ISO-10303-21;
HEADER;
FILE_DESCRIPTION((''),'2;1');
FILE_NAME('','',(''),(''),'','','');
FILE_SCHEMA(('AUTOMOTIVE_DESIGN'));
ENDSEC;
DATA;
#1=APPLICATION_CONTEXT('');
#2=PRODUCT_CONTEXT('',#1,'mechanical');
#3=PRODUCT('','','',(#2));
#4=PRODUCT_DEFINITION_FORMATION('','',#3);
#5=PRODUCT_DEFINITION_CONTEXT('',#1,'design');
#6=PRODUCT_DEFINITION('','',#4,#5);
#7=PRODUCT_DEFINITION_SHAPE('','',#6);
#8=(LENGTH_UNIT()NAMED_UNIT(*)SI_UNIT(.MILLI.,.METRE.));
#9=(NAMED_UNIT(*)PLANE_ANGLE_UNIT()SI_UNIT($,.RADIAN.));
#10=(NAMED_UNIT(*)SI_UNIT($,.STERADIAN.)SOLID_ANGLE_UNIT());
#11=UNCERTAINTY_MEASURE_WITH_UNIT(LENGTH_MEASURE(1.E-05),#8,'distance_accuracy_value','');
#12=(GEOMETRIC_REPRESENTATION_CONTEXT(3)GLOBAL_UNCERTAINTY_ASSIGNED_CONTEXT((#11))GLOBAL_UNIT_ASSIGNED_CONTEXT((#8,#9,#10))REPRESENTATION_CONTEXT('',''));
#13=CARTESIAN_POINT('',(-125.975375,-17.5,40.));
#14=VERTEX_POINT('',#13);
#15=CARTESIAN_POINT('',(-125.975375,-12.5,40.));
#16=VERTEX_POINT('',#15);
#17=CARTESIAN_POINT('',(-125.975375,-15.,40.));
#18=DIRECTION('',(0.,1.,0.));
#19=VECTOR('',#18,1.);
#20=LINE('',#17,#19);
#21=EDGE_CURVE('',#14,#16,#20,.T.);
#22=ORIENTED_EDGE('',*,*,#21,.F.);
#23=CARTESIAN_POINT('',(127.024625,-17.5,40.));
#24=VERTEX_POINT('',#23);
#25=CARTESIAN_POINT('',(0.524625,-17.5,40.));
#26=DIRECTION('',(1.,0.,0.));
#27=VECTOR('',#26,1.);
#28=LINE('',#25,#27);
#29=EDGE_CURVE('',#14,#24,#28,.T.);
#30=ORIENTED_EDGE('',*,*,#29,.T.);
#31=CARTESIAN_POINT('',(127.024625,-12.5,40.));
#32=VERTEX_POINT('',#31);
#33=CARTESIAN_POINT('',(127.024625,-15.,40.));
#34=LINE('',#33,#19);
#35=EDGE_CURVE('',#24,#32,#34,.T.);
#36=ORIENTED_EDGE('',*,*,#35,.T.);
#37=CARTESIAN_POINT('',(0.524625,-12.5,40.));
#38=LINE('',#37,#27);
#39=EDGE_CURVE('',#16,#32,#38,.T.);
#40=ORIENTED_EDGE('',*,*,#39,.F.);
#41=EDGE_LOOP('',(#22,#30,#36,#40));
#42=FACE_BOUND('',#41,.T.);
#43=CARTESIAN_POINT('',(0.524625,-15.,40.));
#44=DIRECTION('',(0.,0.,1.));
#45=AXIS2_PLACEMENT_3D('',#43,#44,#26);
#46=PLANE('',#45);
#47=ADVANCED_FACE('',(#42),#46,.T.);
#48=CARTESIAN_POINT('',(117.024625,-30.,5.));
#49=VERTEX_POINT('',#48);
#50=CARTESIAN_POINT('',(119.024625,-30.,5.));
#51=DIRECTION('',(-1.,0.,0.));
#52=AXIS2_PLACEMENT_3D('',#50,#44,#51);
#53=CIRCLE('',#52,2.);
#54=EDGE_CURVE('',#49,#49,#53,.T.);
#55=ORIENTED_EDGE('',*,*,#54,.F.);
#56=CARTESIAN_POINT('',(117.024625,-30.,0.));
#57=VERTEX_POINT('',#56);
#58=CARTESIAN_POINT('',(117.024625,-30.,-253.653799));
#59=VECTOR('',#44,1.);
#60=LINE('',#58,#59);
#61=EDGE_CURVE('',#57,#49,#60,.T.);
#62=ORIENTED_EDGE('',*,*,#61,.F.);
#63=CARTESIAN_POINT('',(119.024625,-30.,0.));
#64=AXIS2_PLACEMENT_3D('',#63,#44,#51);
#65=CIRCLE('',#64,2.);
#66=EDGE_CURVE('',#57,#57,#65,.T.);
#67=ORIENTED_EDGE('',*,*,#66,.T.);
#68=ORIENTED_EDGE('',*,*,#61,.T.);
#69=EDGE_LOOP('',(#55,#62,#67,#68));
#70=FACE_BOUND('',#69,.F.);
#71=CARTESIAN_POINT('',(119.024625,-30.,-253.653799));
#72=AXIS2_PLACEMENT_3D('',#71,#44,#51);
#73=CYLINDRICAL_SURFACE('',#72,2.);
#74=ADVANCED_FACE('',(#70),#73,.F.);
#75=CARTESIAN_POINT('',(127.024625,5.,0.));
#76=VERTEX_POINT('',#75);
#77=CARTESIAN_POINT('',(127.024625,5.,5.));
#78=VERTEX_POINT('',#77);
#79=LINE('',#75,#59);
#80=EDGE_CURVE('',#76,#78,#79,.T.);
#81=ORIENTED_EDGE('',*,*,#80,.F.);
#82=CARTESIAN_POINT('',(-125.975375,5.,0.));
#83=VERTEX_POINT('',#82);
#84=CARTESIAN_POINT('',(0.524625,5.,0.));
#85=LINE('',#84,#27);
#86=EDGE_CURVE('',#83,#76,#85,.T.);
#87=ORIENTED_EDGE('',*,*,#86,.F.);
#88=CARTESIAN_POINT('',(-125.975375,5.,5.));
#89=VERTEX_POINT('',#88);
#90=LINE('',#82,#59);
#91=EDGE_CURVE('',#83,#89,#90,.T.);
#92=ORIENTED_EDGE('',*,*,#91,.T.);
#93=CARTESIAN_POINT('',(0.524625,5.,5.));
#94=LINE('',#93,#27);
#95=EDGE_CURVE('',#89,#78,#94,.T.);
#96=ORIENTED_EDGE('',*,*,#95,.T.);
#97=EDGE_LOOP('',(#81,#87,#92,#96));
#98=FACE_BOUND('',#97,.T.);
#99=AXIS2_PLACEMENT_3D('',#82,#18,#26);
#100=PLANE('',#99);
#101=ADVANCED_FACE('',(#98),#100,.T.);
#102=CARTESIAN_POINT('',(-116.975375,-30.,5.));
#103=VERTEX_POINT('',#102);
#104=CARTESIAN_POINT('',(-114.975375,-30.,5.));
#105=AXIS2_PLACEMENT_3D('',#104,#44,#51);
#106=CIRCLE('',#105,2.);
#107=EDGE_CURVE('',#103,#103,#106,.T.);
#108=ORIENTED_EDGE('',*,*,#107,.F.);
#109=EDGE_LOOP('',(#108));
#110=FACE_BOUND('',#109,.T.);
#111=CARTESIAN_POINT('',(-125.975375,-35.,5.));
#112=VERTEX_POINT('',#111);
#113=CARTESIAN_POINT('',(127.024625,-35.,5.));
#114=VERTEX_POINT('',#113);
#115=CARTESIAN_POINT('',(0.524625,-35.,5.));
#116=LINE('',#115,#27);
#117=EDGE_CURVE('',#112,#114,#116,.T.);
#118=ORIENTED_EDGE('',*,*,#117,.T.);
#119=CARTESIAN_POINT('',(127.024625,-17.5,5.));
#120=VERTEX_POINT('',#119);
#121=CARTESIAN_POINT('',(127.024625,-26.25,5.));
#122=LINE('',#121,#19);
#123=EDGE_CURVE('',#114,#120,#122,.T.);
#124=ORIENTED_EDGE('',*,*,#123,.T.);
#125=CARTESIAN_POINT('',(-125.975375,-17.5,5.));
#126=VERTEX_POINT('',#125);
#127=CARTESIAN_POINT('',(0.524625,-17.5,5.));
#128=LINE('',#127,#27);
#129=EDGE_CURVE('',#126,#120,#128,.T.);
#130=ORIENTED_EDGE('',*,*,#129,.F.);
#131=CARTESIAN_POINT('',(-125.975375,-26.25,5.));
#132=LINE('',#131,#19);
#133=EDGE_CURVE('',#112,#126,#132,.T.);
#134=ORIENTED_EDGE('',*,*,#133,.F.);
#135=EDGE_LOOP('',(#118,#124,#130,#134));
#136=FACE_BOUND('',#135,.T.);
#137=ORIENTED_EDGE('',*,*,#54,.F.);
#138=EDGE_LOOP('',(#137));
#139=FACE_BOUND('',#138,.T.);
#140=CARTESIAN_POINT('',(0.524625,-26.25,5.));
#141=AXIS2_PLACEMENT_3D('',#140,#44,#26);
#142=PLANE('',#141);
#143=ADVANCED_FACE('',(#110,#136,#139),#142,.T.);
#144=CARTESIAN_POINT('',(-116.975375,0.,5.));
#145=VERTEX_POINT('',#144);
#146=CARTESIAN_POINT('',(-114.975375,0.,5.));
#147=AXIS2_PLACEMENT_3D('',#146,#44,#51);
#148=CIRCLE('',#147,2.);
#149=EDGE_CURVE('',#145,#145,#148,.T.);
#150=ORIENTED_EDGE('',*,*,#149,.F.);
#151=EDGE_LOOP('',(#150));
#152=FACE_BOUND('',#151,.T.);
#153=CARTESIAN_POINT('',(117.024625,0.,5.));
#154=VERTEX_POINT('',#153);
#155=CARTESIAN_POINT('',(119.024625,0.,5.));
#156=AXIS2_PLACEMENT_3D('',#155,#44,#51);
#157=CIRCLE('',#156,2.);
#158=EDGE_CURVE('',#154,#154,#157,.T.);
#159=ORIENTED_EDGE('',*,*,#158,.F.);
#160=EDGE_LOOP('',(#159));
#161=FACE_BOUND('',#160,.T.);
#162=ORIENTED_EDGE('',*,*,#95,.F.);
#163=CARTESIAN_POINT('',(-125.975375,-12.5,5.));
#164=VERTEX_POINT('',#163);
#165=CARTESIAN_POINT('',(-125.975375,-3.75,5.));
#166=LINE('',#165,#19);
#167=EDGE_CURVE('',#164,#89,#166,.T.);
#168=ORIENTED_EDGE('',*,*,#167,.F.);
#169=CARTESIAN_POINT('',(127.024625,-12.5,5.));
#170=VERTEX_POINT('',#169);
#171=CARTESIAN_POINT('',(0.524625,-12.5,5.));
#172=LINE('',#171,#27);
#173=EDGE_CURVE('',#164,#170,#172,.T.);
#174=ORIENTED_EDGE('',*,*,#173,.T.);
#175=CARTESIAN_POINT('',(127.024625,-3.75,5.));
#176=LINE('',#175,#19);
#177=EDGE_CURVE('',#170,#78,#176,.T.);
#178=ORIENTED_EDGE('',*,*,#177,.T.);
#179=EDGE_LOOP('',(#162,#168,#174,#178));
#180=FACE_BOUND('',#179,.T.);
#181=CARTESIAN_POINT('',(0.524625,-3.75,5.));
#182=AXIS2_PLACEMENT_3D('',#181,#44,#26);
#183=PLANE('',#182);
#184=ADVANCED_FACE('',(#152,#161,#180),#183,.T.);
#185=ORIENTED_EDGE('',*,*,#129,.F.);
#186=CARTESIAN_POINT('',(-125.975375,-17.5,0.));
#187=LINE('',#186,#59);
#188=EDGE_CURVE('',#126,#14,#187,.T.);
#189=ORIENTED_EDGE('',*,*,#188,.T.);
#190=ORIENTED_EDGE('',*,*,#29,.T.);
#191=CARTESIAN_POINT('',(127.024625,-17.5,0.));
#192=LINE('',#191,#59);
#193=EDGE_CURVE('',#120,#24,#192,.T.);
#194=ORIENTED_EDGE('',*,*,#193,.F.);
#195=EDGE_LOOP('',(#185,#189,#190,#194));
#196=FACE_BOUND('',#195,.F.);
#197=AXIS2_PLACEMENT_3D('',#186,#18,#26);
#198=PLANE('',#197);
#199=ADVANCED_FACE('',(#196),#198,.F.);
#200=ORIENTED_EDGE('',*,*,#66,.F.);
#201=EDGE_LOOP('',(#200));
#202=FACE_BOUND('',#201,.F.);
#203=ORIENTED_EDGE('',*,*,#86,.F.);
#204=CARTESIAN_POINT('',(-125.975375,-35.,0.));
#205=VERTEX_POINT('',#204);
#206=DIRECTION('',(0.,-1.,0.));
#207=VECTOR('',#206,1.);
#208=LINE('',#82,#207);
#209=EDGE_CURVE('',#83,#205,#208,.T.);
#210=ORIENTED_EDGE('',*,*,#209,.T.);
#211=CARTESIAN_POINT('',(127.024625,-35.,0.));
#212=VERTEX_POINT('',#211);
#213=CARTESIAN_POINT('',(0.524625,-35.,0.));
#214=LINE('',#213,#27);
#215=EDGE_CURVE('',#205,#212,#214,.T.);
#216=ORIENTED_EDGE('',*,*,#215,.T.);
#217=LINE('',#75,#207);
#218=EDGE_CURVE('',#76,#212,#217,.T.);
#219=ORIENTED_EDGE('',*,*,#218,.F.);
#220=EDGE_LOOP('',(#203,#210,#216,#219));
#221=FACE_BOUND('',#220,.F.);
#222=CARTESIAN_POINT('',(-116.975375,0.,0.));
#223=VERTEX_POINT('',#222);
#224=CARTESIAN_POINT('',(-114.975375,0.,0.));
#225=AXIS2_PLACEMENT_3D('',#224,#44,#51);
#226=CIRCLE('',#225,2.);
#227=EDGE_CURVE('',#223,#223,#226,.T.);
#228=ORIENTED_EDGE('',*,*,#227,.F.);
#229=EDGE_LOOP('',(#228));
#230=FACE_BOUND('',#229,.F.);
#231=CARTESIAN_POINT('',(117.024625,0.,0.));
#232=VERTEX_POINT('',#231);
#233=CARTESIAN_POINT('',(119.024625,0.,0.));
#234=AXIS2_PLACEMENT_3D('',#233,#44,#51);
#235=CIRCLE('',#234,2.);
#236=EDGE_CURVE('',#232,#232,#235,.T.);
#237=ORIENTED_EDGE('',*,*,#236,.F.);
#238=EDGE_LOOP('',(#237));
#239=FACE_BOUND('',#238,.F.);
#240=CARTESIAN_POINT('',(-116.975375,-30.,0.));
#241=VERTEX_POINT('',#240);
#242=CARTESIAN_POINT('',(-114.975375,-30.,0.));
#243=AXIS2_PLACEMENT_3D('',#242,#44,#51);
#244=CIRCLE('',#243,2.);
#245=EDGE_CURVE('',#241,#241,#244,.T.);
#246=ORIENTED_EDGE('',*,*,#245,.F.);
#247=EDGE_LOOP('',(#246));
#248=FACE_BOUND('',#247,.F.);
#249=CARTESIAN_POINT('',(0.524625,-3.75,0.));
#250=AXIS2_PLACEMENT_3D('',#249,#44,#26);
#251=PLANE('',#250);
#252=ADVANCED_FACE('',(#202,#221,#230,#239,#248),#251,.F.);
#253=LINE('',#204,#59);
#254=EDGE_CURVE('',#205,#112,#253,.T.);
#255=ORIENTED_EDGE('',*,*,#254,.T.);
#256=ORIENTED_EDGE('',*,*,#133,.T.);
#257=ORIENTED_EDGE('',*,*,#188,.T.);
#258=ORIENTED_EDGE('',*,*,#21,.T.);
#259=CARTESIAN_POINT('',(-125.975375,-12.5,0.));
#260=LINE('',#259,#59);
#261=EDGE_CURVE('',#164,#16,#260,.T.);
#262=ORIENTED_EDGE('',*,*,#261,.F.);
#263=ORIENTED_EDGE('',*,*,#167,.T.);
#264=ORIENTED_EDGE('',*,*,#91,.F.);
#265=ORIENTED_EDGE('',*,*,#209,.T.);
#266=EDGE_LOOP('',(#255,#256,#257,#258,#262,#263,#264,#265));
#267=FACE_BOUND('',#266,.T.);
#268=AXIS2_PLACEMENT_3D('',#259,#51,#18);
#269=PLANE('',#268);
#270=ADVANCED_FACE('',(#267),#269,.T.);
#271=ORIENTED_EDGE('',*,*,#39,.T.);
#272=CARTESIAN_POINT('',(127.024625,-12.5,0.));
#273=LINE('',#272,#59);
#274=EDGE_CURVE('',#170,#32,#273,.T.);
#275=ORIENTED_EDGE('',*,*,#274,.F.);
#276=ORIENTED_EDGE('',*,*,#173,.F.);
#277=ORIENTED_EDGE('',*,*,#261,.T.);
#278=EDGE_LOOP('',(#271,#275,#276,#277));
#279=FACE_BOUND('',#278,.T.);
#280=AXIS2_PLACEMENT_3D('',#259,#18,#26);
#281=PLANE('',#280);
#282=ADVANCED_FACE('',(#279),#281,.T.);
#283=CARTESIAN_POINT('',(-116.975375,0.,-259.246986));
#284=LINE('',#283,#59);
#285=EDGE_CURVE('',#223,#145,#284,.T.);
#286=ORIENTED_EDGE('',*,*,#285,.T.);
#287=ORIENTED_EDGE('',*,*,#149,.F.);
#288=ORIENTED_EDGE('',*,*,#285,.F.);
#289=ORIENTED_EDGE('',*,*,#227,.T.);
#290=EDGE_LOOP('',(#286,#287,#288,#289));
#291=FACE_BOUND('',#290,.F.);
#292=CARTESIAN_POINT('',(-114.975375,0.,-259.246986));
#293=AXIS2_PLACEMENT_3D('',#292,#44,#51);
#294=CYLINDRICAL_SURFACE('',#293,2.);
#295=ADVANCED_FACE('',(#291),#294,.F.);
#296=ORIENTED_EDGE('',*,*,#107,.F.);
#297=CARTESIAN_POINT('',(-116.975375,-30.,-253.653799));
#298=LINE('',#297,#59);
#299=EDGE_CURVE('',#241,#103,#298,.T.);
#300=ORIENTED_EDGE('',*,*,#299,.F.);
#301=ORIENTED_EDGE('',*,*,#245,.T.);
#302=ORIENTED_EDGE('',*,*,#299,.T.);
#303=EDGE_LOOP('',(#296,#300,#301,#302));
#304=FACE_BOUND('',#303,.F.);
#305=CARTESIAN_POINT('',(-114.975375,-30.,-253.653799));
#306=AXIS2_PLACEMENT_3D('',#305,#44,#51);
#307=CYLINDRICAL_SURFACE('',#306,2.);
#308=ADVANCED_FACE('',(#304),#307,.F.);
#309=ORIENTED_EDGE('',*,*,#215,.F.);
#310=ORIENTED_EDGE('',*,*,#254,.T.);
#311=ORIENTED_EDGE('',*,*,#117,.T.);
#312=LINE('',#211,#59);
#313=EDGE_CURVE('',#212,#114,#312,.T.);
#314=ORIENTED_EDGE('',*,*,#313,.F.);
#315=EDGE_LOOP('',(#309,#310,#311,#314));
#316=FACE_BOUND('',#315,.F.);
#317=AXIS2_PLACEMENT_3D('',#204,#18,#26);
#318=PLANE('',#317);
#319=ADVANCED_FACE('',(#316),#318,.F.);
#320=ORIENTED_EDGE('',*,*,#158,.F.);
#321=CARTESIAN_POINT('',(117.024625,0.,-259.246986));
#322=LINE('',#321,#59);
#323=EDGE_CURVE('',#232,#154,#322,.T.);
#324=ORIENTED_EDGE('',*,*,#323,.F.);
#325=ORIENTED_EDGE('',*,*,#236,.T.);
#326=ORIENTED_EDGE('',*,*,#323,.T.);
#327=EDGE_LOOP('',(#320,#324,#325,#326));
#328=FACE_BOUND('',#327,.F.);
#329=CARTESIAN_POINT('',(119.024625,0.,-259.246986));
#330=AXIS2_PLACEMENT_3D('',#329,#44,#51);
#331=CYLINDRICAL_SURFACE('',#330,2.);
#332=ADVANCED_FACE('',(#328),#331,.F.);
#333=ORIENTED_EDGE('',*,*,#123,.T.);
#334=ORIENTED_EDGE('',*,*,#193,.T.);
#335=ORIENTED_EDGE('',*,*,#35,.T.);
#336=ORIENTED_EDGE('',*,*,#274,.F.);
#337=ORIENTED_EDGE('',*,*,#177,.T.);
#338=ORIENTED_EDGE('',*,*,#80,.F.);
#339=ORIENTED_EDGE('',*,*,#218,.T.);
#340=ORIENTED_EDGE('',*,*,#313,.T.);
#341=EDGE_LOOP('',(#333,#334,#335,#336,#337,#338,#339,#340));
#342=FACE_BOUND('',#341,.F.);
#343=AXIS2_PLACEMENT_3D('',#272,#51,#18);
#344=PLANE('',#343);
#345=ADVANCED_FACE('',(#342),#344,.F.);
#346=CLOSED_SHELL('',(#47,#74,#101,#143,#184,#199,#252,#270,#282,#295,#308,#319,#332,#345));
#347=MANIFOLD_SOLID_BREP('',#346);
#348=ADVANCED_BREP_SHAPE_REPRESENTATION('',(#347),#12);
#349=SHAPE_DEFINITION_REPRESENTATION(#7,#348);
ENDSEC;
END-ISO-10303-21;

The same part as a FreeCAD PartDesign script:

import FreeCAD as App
import Part
import Sketcher

doc = App.newDocument("Part")
body = doc.addObject("PartDesign::Body", "Body")

# Sketch on XY plane
sketch1 = doc.addObject("Sketcher::SketchObject", "Sketch")
body.addObject(sketch1)
sketch1.AttachmentSupport = (doc.XY_Plane, [""])
sketch1.MapMode = "FlatFace"
sketch1.addGeometry(Part.LineSegment(App.Vector(-126, -18, 0), App.Vector(-126, -35, 0)), False)
sketch1.addGeometry(Part.LineSegment(App.Vector(-126, -35, 0), App.Vector(127, -35, 0)), False)
sketch1.addGeometry(Part.LineSegment(App.Vector(127, -35, 0), App.Vector(127, -18, 0)), False)
sketch1.addGeometry(Part.LineSegment(App.Vector(127, -18, 0), App.Vector(-126, -18, 0)), False)
sketch1.addConstraint(Sketcher.Constraint("Coincident", 0, 2, 1, 1))
sketch1.addConstraint(Sketcher.Constraint("Coincident", 1, 2, 2, 1))
sketch1.addConstraint(Sketcher.Constraint("Coincident", 2, 2, 3, 1))
sketch1.addConstraint(Sketcher.Constraint("Coincident", 3, 2, 0, 1))
sketch1.addConstraint(Sketcher.Constraint("Vertical", 0))
sketch1.addConstraint(Sketcher.Constraint("Horizontal", 1))
sketch1.addConstraint(Sketcher.Constraint("Vertical", 2))
sketch1.addConstraint(Sketcher.Constraint("Horizontal", 3))
sketch1.addConstraint(Sketcher.Constraint("DistanceX", 1, 1, 1, 2, 253.0))
sketch1.addConstraint(Sketcher.Constraint("DistanceY", 0, 2, 0, 1, 17.5))
sketch1.addConstraint(Sketcher.Constraint("DistanceY", 0, 2, -1, 1, 35.0))
sketch1.addConstraint(Sketcher.Constraint("DistanceX", 0, 2, -1, 1, 125.975375))
pad1 = doc.addObject("PartDesign::Pad", "Pad")
body.addObject(pad1)
pad1.Profile = sketch1
pad1.Length = 5

# Sketch on XY plane
sketch2 = doc.addObject("Sketcher::SketchObject", "Sketch001")
body.addObject(sketch2)
sketch2.AttachmentSupport = (doc.XY_Plane, [""])
sketch2.MapMode = "FlatFace"
sketch2.addGeometry(Part.Circle(App.Vector(-115, 0, 0), App.Vector(0, 0, 1), 2), False)
sketch2.addGeometry(Part.Circle(App.Vector(-115, -30, 0), App.Vector(0, 0, 1), 2), False)
sketch2.addGeometry(Part.Circle(App.Vector(119, -30, 0), App.Vector(0, 0, 1), 2), False)
sketch2.addGeometry(Part.Circle(App.Vector(119, 0, 0), App.Vector(0, 0, 1), 2), False)
sketch2.addConstraint(Sketcher.Constraint("Equal", 0, 1))
sketch2.addConstraint(Sketcher.Constraint("Equal", 1, 2))
sketch2.addConstraint(Sketcher.Constraint("Equal", 2, 3))
sketch2.addConstraint(Sketcher.Constraint("PointOnObject", 0, 3, -1))
sketch2.addConstraint(Sketcher.Constraint("PointOnObject", 3, 3, -1))
sketch2.addConstraint(Sketcher.Constraint("Horizontal", 1, 3, 2, 3))
sketch2.addConstraint(Sketcher.Constraint("Vertical", 0, 3, 1, 3))
sketch2.addConstraint(Sketcher.Constraint("Vertical", 2, 3, 3, 3))
sketch2.addConstraint(Sketcher.Constraint("Diameter", 0, 4.0))
sketch2.addConstraint(Sketcher.Constraint("DistanceY", 1, 3, -1, 1, 30.0))
sketch2.addConstraint(Sketcher.Constraint("DistanceX", 1, 3, 2, 3, 234.0))
sketch2.addConstraint(Sketcher.Constraint("DistanceX", 0, 3, -1, 1, 114.975375))
doc.recompute()
hole = doc.addObject("PartDesign::Hole", "Hole")
body.addObject(hole)
hole.Profile = sketch2
hole.ThreadType = "None"
hole.Diameter = 4
hole.DepthType = "ThroughAll"
hole.Reversed = True

# Sketch on XY plane
sketch3 = doc.addObject("Sketcher::SketchObject", "Sketch002")
body.addObject(sketch3)
sketch3.AttachmentSupport = (doc.XY_Plane, [""])
sketch3.MapMode = "FlatFace"
sketch3.addGeometry(Part.LineSegment(App.Vector(-126, -12, 0), App.Vector(-126, -18, 0)), False)
sketch3.addGeometry(Part.LineSegment(App.Vector(-126, -18, 0), App.Vector(127, -18, 0)), False)
sketch3.addGeometry(Part.LineSegment(App.Vector(127, -18, 0), App.Vector(127, -12, 0)), False)
sketch3.addGeometry(Part.LineSegment(App.Vector(127, -12, 0), App.Vector(-126, -12, 0)), False)
sketch3.addConstraint(Sketcher.Constraint("Coincident", 0, 2, 1, 1))
sketch3.addConstraint(Sketcher.Constraint("Coincident", 1, 2, 2, 1))
sketch3.addConstraint(Sketcher.Constraint("Coincident", 2, 2, 3, 1))
sketch3.addConstraint(Sketcher.Constraint("Coincident", 3, 2, 0, 1))
sketch3.addConstraint(Sketcher.Constraint("Vertical", 0))
sketch3.addConstraint(Sketcher.Constraint("Horizontal", 1))
sketch3.addConstraint(Sketcher.Constraint("Vertical", 2))
sketch3.addConstraint(Sketcher.Constraint("Horizontal", 3))
sketch3.addConstraint(Sketcher.Constraint("DistanceX", 1, 1, 1, 2, 253.0))
sketch3.addConstraint(Sketcher.Constraint("DistanceY", 0, 2, 0, 1, 5.0))
sketch3.addConstraint(Sketcher.Constraint("DistanceY", 0, 2, -1, 1, 17.5))
sketch3.addConstraint(Sketcher.Constraint("DistanceX", 0, 2, -1, 1, 125.975375))
pad2 = doc.addObject("PartDesign::Pad", "Pad001")
body.addObject(pad2)
pad2.Profile = sketch3
pad2.Length = 40

# Sketch on XY plane
sketch4 = doc.addObject("Sketcher::SketchObject", "Sketch003")
body.addObject(sketch4)
sketch4.AttachmentSupport = (doc.XY_Plane, [""])
sketch4.MapMode = "FlatFace"
sketch4.addGeometry(Part.LineSegment(App.Vector(-126, 5, 0), App.Vector(-126, -12, 0)), False)
sketch4.addGeometry(Part.LineSegment(App.Vector(-126, -12, 0), App.Vector(127, -12, 0)), False)
sketch4.addGeometry(Part.LineSegment(App.Vector(127, -12, 0), App.Vector(127, 5, 0)), False)
sketch4.addGeometry(Part.LineSegment(App.Vector(127, 5, 0), App.Vector(-126, 5, 0)), False)
sketch4.addConstraint(Sketcher.Constraint("Coincident", 0, 2, 1, 1))
sketch4.addConstraint(Sketcher.Constraint("Coincident", 1, 2, 2, 1))
sketch4.addConstraint(Sketcher.Constraint("Coincident", 2, 2, 3, 1))
sketch4.addConstraint(Sketcher.Constraint("Coincident", 3, 2, 0, 1))
sketch4.addConstraint(Sketcher.Constraint("Vertical", 0))
sketch4.addConstraint(Sketcher.Constraint("Horizontal", 1))
sketch4.addConstraint(Sketcher.Constraint("Vertical", 2))
sketch4.addConstraint(Sketcher.Constraint("Horizontal", 3))
sketch4.addConstraint(Sketcher.Constraint("DistanceX", 1, 1, 1, 2, 253.0))
sketch4.addConstraint(Sketcher.Constraint("DistanceY", 0, 2, 0, 1, 17.5))
sketch4.addConstraint(Sketcher.Constraint("DistanceY", -1, 1, 2, 2, 5.0))
sketch4.addConstraint(Sketcher.Constraint("DistanceX", 0, 2, -1, 1, 125.975375))
pad3 = doc.addObject("PartDesign::Pad", "Pad002")
body.addObject(pad3)
pad3.Profile = sketch4
pad3.Length = 5

# Sketch on XY plane
sketch5 = doc.addObject("Sketcher::SketchObject", "Sketch004")
body.addObject(sketch5)
sketch5.AttachmentSupport = (doc.XY_Plane, [""])
sketch5.MapMode = "FlatFace"
sketch5.addGeometry(Part.Circle(App.Vector(-115, 0, 0), App.Vector(0, 0, 1), 2), False)
sketch5.addGeometry(Part.Circle(App.Vector(119, 0, 0), App.Vector(0, 0, 1), 2), False)
sketch5.addConstraint(Sketcher.Constraint("Equal", 0, 1))
sketch5.addConstraint(Sketcher.Constraint("PointOnObject", 0, 3, -1))
sketch5.addConstraint(Sketcher.Constraint("PointOnObject", 1, 3, -1))
sketch5.addConstraint(Sketcher.Constraint("Diameter", 0, 4.0))
sketch5.addConstraint(Sketcher.Constraint("DistanceX", 0, 3, 1, 3, 234.0))
sketch5.addConstraint(Sketcher.Constraint("DistanceX", 0, 3, -1, 1, 114.975375))
doc.recompute()
hole2 = doc.addObject("PartDesign::Hole", "Hole001")
body.addObject(hole2)
hole2.Profile = sketch5
hole2.ThreadType = "None"
hole2.Diameter = 4
hole2.DepthType = "ThroughAll"
hole2.Reversed = True

doc.recompute()
